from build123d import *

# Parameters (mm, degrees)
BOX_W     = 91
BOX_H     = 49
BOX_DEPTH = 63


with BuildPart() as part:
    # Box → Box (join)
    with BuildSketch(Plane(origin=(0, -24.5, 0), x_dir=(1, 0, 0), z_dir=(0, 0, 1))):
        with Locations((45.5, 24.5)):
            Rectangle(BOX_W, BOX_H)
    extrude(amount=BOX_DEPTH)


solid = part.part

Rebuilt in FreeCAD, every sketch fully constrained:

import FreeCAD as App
import Part
import Sketcher
from FreeCAD import Vector


def add_polygon(sketch, points):
    """Adds a closed chain of lines whose ends are joined by coincident constraints."""
    first, n = sketch.GeometryCount, len(points)
    for a, b in zip(points, points[1:] + points[:1]):
        sketch.addGeometry(Part.LineSegment(App.Vector(*a, 0), App.Vector(*b, 0)), False)
    for i in range(n):
        sketch.addConstraint(Sketcher.Constraint("Coincident", first + i, 2, first + (i + 1) % n, 1))

doc = App.newDocument("Part")
body = doc.addObject("PartDesign::Body", "Body")

# Sketch on XY plane
sketch1 = doc.addObject("Sketcher::SketchObject", "Sketch")
body.addObject(sketch1)
sketch1.AttachmentSupport = (doc.XY_Plane, [""])
sketch1.MapMode = "FlatFace"
add_polygon(sketch1, [(0, 24), (0, -24), (91, -24), (91, 24)])  # lines 0-3
sketch1.addConstraint(Sketcher.Constraint("Vertical", 0))
sketch1.addConstraint(Sketcher.Constraint("Horizontal", 1))
sketch1.addConstraint(Sketcher.Constraint("Vertical", 2))
sketch1.addConstraint(Sketcher.Constraint("Horizontal", 3))
sketch1.addConstraint(Sketcher.Constraint("Symmetric", 0, 2, 3, 2, -1, 1))
sketch1.addConstraint(Sketcher.Constraint("DistanceX", 1, 1, 1, 2, 91.0))
sketch1.addConstraint(Sketcher.Constraint("DistanceY", 0, 2, 0, 1, 49.0))
pad1 = doc.addObject("PartDesign::Pad", "Pad")
body.addObject(pad1)
pad1.Profile = sketch1
pad1.Length = 63

doc.recompute()
